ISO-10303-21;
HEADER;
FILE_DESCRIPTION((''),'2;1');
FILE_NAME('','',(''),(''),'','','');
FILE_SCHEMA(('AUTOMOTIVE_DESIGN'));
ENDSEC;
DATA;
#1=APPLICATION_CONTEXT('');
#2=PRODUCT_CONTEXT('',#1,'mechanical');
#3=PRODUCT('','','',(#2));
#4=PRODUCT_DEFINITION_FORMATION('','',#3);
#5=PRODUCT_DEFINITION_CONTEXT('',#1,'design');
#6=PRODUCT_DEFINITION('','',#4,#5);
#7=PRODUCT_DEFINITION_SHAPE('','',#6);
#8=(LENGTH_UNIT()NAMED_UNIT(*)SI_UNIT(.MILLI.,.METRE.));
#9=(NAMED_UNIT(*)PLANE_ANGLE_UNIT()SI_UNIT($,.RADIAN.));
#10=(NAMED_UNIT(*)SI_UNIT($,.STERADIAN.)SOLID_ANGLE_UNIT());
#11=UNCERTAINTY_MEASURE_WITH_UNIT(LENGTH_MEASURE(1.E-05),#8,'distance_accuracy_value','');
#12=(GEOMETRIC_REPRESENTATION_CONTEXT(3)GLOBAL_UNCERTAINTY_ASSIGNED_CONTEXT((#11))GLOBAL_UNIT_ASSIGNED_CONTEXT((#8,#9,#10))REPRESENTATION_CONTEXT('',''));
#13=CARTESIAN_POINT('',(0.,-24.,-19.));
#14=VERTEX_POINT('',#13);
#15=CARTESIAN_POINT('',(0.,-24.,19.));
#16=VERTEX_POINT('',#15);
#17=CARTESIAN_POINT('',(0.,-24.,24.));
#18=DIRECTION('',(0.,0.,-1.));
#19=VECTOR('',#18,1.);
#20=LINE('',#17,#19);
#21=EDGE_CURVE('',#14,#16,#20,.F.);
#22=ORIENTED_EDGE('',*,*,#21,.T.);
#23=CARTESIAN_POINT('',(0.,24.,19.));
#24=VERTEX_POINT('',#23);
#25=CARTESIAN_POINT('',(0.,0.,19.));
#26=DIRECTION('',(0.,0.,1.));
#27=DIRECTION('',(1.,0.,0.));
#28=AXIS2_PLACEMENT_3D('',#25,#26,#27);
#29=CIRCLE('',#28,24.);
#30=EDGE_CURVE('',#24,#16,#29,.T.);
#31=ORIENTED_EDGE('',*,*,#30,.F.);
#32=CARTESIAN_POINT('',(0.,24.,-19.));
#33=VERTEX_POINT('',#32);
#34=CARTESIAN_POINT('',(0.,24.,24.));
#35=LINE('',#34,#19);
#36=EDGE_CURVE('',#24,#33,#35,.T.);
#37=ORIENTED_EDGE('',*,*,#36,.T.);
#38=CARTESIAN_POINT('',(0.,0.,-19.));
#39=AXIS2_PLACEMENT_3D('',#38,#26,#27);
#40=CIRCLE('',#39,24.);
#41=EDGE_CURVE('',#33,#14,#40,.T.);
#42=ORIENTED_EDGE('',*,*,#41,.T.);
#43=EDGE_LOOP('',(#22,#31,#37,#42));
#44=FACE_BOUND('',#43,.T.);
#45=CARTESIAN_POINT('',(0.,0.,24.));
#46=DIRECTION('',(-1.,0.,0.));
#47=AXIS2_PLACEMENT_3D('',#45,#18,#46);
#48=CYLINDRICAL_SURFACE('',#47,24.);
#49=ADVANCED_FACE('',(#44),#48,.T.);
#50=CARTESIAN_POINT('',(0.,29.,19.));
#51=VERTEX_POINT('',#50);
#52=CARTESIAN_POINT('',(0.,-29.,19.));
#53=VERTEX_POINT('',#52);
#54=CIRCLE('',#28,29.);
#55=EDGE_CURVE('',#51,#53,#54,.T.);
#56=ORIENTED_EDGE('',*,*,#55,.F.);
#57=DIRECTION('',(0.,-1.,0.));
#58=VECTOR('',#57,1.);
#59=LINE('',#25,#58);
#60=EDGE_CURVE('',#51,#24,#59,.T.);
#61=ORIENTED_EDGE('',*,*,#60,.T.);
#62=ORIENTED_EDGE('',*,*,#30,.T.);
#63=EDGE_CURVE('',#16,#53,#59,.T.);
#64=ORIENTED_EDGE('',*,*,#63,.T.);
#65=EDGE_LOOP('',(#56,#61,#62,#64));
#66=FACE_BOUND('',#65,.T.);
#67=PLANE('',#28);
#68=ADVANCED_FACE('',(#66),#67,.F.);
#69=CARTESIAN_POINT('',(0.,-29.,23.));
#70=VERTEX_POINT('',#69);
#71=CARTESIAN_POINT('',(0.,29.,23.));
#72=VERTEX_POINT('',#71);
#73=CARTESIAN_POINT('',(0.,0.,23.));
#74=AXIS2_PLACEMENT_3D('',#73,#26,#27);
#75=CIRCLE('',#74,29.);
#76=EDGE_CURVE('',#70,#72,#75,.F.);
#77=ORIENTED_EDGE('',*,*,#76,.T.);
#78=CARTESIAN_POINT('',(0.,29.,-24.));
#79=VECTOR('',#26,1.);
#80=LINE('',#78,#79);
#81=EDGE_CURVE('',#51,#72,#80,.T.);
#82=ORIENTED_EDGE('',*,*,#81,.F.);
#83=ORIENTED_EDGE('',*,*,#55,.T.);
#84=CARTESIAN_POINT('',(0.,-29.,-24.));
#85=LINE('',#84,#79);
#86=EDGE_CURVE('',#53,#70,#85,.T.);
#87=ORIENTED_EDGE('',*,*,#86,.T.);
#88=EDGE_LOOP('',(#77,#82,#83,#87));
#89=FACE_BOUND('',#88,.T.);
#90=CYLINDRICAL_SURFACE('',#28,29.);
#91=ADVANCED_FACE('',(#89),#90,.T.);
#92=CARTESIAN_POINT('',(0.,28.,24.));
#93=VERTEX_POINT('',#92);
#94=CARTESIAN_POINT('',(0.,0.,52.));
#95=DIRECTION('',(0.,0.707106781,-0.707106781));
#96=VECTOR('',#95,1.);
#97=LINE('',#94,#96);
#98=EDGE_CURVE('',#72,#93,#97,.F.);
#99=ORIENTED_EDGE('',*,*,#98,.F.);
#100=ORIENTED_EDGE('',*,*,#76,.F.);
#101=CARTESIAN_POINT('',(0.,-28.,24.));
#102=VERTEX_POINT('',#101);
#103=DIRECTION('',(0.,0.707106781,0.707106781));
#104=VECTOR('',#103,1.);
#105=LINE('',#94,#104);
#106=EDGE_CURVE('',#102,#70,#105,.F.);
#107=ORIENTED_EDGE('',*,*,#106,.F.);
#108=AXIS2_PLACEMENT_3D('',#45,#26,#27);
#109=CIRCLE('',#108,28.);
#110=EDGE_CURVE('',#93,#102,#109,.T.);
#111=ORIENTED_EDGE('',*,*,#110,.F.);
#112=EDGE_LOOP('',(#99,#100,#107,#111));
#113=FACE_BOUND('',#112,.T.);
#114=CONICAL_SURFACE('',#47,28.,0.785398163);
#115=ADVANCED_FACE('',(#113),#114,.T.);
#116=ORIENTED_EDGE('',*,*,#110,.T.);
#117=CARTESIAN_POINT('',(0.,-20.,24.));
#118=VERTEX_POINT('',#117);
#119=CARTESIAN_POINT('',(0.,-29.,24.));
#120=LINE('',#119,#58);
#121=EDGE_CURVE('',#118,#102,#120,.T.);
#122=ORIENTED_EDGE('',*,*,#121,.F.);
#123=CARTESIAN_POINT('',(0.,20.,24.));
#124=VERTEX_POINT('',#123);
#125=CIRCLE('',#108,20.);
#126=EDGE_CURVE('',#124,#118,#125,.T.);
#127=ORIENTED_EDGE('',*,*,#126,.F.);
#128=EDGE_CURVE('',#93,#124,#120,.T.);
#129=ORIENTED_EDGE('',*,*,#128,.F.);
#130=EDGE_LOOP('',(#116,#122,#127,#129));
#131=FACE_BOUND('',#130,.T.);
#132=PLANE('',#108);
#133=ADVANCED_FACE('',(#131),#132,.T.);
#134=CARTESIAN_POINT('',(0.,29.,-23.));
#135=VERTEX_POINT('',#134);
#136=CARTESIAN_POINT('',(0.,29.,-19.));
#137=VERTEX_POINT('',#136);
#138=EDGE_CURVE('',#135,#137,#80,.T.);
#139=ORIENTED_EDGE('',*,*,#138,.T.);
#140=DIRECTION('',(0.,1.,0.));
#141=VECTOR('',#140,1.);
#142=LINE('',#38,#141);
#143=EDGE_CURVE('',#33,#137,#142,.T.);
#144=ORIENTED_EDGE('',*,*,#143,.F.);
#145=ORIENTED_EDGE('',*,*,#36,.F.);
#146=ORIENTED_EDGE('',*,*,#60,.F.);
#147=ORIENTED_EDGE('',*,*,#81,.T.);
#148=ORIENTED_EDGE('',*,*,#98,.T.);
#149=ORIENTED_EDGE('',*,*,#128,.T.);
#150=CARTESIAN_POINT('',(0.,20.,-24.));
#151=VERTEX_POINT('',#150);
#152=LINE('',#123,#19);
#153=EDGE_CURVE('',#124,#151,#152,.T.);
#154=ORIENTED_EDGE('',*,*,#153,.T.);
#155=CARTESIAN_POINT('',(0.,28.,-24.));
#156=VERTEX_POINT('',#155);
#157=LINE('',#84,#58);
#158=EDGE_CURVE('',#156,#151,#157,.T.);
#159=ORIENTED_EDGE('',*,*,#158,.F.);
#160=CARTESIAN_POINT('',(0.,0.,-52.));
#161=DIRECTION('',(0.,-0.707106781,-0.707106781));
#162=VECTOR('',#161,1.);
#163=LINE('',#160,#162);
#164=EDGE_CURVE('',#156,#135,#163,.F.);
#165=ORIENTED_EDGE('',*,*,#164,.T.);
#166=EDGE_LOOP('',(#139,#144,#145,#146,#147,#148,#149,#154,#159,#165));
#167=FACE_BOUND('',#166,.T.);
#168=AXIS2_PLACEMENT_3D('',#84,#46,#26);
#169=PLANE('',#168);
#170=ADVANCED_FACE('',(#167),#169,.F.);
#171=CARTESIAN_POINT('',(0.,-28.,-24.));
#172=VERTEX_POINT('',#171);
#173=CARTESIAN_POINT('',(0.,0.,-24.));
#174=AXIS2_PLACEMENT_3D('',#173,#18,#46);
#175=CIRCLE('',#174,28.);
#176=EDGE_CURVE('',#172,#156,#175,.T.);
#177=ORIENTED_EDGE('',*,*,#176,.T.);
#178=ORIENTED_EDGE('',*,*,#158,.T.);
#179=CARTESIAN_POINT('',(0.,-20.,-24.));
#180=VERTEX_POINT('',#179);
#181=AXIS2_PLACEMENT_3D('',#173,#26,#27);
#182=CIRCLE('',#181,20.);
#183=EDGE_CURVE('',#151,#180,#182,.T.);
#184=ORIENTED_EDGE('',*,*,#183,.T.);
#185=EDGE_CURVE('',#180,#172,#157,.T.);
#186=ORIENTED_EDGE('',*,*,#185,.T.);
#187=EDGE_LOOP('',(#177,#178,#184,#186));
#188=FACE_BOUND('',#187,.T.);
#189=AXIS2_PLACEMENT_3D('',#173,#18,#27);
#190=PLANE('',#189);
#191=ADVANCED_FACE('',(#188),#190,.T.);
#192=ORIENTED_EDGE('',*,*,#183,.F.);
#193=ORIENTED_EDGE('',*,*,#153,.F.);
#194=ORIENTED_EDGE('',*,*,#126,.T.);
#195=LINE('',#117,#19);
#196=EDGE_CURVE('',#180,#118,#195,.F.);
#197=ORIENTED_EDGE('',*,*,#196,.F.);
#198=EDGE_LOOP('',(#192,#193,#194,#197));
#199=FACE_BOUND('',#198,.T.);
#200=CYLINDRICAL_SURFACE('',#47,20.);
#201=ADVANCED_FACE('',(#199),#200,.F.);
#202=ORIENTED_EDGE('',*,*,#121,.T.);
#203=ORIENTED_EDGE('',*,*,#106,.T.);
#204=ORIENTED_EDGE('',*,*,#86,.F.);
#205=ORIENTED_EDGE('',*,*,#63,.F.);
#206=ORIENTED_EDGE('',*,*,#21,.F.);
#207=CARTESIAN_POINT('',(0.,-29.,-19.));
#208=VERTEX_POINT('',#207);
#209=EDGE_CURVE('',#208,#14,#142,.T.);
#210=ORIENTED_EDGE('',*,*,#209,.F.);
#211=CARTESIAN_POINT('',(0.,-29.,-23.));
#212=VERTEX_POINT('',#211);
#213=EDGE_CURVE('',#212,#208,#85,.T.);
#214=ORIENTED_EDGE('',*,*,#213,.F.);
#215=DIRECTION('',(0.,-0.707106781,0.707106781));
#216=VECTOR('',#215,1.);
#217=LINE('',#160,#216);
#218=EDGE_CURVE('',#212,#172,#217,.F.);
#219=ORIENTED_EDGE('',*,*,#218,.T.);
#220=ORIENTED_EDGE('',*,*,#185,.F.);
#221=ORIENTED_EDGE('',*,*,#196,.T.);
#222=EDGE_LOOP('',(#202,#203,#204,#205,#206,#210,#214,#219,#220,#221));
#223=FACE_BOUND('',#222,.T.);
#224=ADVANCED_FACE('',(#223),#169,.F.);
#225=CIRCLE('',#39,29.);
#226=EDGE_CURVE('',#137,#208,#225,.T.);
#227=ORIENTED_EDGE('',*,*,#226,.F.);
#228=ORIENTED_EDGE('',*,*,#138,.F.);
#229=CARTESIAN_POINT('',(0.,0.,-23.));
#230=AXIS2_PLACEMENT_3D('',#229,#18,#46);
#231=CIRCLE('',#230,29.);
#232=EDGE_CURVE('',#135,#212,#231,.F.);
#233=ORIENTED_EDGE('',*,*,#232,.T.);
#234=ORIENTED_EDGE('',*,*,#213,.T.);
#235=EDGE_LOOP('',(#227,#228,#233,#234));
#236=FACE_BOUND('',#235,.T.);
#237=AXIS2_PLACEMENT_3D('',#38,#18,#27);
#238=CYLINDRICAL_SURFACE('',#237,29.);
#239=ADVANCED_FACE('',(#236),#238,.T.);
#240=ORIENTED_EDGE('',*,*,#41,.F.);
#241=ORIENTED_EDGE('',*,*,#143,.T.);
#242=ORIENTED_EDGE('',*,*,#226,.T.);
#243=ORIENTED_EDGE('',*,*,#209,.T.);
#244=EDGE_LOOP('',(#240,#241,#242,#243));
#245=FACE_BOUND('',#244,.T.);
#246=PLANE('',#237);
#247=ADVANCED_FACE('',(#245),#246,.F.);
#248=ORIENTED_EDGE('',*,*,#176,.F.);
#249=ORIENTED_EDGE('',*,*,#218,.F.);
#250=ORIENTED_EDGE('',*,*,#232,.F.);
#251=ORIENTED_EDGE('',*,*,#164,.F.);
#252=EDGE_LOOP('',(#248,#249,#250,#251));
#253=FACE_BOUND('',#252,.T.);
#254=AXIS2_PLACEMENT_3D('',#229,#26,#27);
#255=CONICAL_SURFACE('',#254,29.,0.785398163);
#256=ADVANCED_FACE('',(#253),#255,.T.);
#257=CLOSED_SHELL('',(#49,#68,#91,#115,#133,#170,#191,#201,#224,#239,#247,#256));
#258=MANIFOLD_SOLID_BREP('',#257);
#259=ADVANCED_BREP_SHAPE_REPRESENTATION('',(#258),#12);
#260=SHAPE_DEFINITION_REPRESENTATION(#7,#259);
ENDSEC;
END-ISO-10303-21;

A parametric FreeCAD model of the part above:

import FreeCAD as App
import Part
import Sketcher

V = App.Vector


def edges_at(feature, points):
    """Names of the edges that pass closest to the given points."""
    edges = feature.Shape.Edges
    near = lambda p: min(range(len(edges)), key=lambda i: edges[i].distToShape(Part.Vertex(*p))[0])
    return sorted({f"Edge{near(p) + 1}" for p in points})


def add_polygon(sketch, points):
    """Adds a closed chain of lines whose ends are joined by coincident constraints."""
    first, n = sketch.GeometryCount, len(points)
    for a, b in zip(points, points[1:] + points[:1]):
        sketch.addGeometry(Part.LineSegment(App.Vector(*a, 0), App.Vector(*b, 0)), False)
    for i in range(n):
        sketch.addConstraint(Sketcher.Constraint("Coincident", first + i, 2, first + (i + 1) % n, 1))

doc = App.newDocument("Part")
params = doc.addObject("Spreadsheet::Sheet", "Params")
for row, (alias, value) in enumerate([
    ("sketch1_diameter", "48 mm"),
    ("sketch1_diameter2", "40 mm"),
    ("pad1_length", "24 mm"),
    ("sketch2_diameter", "58 mm"),
    ("sketch2_diameter2", "48 mm"),
    ("pad2_length", "5 mm"),
    ("sketch3_width", "29 mm"),
    ("sketch3_height", "58 mm"),
    ("chamfer_size", "1 mm"),
], start=1):
    params.set(f"A{row}", alias)
    params.set(f"B{row}", "=" + value)
    params.setAlias(f"B{row}", alias)

body = doc.addObject("PartDesign::Body", "Body")

sketch1 = doc.addObject("Sketcher::SketchObject", "Sketch")
body.addObject(sketch1)
sketch1.AttachmentSupport = (doc.XY_Plane, [""])
sketch1.MapMode = "FlatFace"
sketch1.addGeometry(Part.Circle(V(0, 0, 0), V(0, 0, 1), 24), False)
sketch1.addGeometry(Part.Circle(V(0, 0, 0), V(0, 0, 1), 20), False)
sketch1.addConstraint(Sketcher.Constraint("Coincident", 0, 3, -1, 1))
sketch1.addConstraint(Sketcher.Constraint("Coincident", 1, 3, -1, 1))
sketch1.addConstraint(Sketcher.Constraint("Diameter", 0, 48.0))
sketch1.addConstraint(Sketcher.Constraint("Diameter", 1, 40.0))
sketch1.setExpression("Constraints[2]", "Params.sketch1_diameter")
sketch1.setExpression("Constraints[3]", "Params.sketch1_diameter2")
pad1 = doc.addObject("PartDesign::Pad", "Pad")
body.addObject(pad1)
pad1.Profile = sketch1
pad1.setExpression("Length", "Params.pad1_length")

sketch2 = doc.addObject("Sketcher::SketchObject", "Sketch001")
body.addObject(sketch2)
sketch2.AttachmentSupport = (doc.XY_Plane, [""])
sketch2.MapMode = "FlatFace"
sketch2.AttachmentOffset = App.Placement(V(0, 0, 24), App.Rotation())
sketch2.addGeometry(Part.Circle(V(0, 0, 0), V(0, 0, 1), 29), False)
sketch2.addGeometry(Part.Circle(V(0, 0, 0), V(0, 0, 1), 24), False)
sketch2.addConstraint(Sketcher.Constraint("Coincident", 0, 3, -1, 1))
sketch2.addConstraint(Sketcher.Constraint("Coincident", 1, 3, -1, 1))
sketch2.addConstraint(Sketcher.Constraint("Diameter", 0, 58.0))
sketch2.addConstraint(Sketcher.Constraint("Diameter", 1, 48.0))
sketch2.setExpression("Constraints[2]", "Params.sketch2_diameter")
sketch2.setExpression("Constraints[3]", "Params.sketch2_diameter2")
pad2 = doc.addObject("PartDesign::Pad", "Pad001")
body.addObject(pad2)
pad2.Profile = sketch2
pad2.setExpression("Length", "Params.pad2_length")
pad2.Reversed = True
body2 = doc.addObject("PartDesign::Body", "Body001")
doc.recompute()

body2.BaseFeature = body
doc.recompute()

mirroring = doc.addObject("Part::Mirroring", "Mirroring")
mirroring.Source = body
mirroring.Base = V(0, 0, 0)
mirroring.Normal = V(0, 0, 1)
body3 = doc.addObject("PartDesign::Body", "Body002")
body3.BaseFeature = mirroring
boolean = doc.addObject("PartDesign::Boolean", "Boolean")
body2.addObject(boolean)
boolean.Type = "Fuse"
boolean.addObjects([body3])
doc.recompute()

sketch3 = doc.addObject("Sketcher::SketchObject", "Sketch002")
body2.addObject(sketch3)
sketch3.AttachmentSupport = (doc.getObject("XY_Plane001"), [""])
sketch3.MapMode = "FlatFace"
sketch3.AttachmentOffset = App.Placement(V(0, 0, 24), App.Rotation())
add_polygon(sketch3, [(0, 29), (0, -29), (29, -29), (29, 29)])
sketch3.addConstraint(Sketcher.Constraint("Vertical", 0))
sketch3.addConstraint(Sketcher.Constraint("Horizontal", 1))
sketch3.addConstraint(Sketcher.Constraint("Vertical", 2))
sketch3.addConstraint(Sketcher.Constraint("Horizontal", 3))
sketch3.addConstraint(Sketcher.Constraint("Symmetric", 0, 2, 3, 2, -1, 1))
sketch3.addConstraint(Sketcher.Constraint("DistanceX", 1, 1, 1, 2, 29.0))
sketch3.addConstraint(Sketcher.Constraint("DistanceY", 0, 2, 0, 1, 58.0))
sketch3.setExpression("Constraints[9]", "Params.sketch3_width")
sketch3.setExpression("Constraints[10]", "Params.sketch3_height")
pocket1 = doc.addObject("PartDesign::Pocket", "Pocket")
body2.addObject(pocket1)
pocket1.Profile = sketch3
pocket1.Type = "ThroughAll"
doc.recompute()

chamfer = doc.addObject("PartDesign::Chamfer", "Chamfer")
body2.addObject(chamfer)
chamfer.Base = (pocket1, edges_at(pocket1, [(-29, 0, -24), (-29, 0, 24)]))
chamfer.setExpression("Size", "Params.chamfer_size")
mirroring.Visibility = False

doc.recompute()
